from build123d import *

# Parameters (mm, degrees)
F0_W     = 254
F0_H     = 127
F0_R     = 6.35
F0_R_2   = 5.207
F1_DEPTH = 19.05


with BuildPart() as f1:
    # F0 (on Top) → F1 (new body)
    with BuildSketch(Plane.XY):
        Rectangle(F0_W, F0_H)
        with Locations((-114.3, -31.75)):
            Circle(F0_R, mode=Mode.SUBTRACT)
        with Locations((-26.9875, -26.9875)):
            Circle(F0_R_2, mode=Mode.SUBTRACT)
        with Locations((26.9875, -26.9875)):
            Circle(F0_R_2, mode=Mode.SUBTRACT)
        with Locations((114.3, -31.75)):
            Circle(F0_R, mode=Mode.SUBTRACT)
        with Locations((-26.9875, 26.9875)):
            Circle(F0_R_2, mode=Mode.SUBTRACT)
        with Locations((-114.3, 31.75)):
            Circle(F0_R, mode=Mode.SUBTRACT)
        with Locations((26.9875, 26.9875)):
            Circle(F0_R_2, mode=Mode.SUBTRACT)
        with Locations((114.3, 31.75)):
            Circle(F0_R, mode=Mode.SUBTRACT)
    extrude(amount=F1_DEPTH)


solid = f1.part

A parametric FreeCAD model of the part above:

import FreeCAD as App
import Part
import Sketcher
Q = App.Units.Quantity


def add_polygon(sketch, points):
    """Adds a closed chain of lines whose ends are joined by coincident constraints."""
    first, n = sketch.GeometryCount, len(points)
    for a, b in zip(points, points[1:] + points[:1]):
        sketch.addGeometry(Part.LineSegment(App.Vector(*a, 0), App.Vector(*b, 0)), False)
    for i in range(n):
        sketch.addConstraint(Sketcher.Constraint("Coincident", first + i, 2, first + (i + 1) % n, 1))

doc = App.newDocument("Part")
body = doc.addObject("PartDesign::Body", "Body")

# Sketch on XY plane
sketch1 = body.newObject("Sketcher::SketchObject", "Sketch")
sketch1.AttachmentSupport = (doc.getObject("XY_Plane"), [""])
sketch1.MapMode = "FlatFace"
add_polygon(sketch1, [(-127, 64), (-127, -64), (127, -64), (127, 64)])  # lines 0-3
sketch1.addGeometry(Part.Circle(App.Vector(-114, -32, 0), App.Vector(0, 0, 1), 6), False)  # 4
sketch1.addGeometry(Part.Circle(App.Vector(-27, -27, 0), App.Vector(0, 0, 1), 5), False)  # 5
sketch1.addGeometry(Part.Circle(App.Vector(27, -27, 0), App.Vector(0, 0, 1), 5), False)  # 6
sketch1.addGeometry(Part.Circle(App.Vector(114, -32, 0), App.Vector(0, 0, 1), 6), False)  # 7
sketch1.addGeometry(Part.Circle(App.Vector(-114, 32, 0), App.Vector(0, 0, 1), 6), False)  # 8
sketch1.addGeometry(Part.Circle(App.Vector(-27, 27, 0), App.Vector(0, 0, 1), 5), False)  # 9
sketch1.addGeometry(Part.Circle(App.Vector(27, 27, 0), App.Vector(0, 0, 1), 5), False)  # 10
sketch1.addGeometry(Part.Circle(App.Vector(114, 32, 0), App.Vector(0, 0, 1), 6), False)  # 11
sketch1.addConstraint([
    Sketcher.Constraint("Vertical", 0),
    Sketcher.Constraint("Horizontal", 1),
    Sketcher.Constraint("Vertical", 2),
    Sketcher.Constraint("Horizontal", 3),
    Sketcher.Constraint("Equal", 5, 6),
    Sketcher.Constraint("Equal", 4, 7),
    Sketcher.Constraint("Equal", 7, 8),
    Sketcher.Constraint("Equal", 6, 9),
    Sketcher.Constraint("Equal", 9, 10),
    Sketcher.Constraint("Equal", 8, 11),
    Sketcher.Constraint("Symmetric", 7, 3, 8, 3, -1, 1),
    Sketcher.Constraint("Symmetric", 6, 3, 9, 3, -1, 1),
    Sketcher.Constraint("Symmetric", 5, 3, 10, 3, -1, 1),
    Sketcher.Constraint("Symmetric", 4, 3, 11, 3, -1, 1),
    Sketcher.Constraint("Symmetric", 0, 2, 2, 2, -1, 1),
    Sketcher.Constraint("Symmetric", 5, 3, 6, 3, -2),
    Sketcher.Constraint("Symmetric", 4, 3, 7, 3, -2),
    Sketcher.Constraint("Diameter", 4, Q("0.5 in")),
    Sketcher.Constraint("Diameter", 5, Q("0.41 in")),
    Sketcher.Constraint("DistanceX", 1, 1, 1, 2, Q("10 in")),
    Sketcher.Constraint("DistanceY", 0, 2, 0, 1, Q("5 in")),
    Sketcher.Constraint("DistanceX", 4, 3, 7, 3, Q("9 in")),
    Sketcher.Constraint("DistanceY", 4, 3, 8, 3, Q("2.5 in")),
    Sketcher.Constraint("DistanceX", 5, 3, -1, 1, Q("1.0625 in")),
    Sketcher.Constraint("DistanceY", 5, 3, -1, 1, Q("1.0625 in")),
])
pad1 = body.newObject("PartDesign::Pad", "Pad")
pad1.Profile = sketch1
pad1.Length = Q("0.75 in")

doc.recompute()
